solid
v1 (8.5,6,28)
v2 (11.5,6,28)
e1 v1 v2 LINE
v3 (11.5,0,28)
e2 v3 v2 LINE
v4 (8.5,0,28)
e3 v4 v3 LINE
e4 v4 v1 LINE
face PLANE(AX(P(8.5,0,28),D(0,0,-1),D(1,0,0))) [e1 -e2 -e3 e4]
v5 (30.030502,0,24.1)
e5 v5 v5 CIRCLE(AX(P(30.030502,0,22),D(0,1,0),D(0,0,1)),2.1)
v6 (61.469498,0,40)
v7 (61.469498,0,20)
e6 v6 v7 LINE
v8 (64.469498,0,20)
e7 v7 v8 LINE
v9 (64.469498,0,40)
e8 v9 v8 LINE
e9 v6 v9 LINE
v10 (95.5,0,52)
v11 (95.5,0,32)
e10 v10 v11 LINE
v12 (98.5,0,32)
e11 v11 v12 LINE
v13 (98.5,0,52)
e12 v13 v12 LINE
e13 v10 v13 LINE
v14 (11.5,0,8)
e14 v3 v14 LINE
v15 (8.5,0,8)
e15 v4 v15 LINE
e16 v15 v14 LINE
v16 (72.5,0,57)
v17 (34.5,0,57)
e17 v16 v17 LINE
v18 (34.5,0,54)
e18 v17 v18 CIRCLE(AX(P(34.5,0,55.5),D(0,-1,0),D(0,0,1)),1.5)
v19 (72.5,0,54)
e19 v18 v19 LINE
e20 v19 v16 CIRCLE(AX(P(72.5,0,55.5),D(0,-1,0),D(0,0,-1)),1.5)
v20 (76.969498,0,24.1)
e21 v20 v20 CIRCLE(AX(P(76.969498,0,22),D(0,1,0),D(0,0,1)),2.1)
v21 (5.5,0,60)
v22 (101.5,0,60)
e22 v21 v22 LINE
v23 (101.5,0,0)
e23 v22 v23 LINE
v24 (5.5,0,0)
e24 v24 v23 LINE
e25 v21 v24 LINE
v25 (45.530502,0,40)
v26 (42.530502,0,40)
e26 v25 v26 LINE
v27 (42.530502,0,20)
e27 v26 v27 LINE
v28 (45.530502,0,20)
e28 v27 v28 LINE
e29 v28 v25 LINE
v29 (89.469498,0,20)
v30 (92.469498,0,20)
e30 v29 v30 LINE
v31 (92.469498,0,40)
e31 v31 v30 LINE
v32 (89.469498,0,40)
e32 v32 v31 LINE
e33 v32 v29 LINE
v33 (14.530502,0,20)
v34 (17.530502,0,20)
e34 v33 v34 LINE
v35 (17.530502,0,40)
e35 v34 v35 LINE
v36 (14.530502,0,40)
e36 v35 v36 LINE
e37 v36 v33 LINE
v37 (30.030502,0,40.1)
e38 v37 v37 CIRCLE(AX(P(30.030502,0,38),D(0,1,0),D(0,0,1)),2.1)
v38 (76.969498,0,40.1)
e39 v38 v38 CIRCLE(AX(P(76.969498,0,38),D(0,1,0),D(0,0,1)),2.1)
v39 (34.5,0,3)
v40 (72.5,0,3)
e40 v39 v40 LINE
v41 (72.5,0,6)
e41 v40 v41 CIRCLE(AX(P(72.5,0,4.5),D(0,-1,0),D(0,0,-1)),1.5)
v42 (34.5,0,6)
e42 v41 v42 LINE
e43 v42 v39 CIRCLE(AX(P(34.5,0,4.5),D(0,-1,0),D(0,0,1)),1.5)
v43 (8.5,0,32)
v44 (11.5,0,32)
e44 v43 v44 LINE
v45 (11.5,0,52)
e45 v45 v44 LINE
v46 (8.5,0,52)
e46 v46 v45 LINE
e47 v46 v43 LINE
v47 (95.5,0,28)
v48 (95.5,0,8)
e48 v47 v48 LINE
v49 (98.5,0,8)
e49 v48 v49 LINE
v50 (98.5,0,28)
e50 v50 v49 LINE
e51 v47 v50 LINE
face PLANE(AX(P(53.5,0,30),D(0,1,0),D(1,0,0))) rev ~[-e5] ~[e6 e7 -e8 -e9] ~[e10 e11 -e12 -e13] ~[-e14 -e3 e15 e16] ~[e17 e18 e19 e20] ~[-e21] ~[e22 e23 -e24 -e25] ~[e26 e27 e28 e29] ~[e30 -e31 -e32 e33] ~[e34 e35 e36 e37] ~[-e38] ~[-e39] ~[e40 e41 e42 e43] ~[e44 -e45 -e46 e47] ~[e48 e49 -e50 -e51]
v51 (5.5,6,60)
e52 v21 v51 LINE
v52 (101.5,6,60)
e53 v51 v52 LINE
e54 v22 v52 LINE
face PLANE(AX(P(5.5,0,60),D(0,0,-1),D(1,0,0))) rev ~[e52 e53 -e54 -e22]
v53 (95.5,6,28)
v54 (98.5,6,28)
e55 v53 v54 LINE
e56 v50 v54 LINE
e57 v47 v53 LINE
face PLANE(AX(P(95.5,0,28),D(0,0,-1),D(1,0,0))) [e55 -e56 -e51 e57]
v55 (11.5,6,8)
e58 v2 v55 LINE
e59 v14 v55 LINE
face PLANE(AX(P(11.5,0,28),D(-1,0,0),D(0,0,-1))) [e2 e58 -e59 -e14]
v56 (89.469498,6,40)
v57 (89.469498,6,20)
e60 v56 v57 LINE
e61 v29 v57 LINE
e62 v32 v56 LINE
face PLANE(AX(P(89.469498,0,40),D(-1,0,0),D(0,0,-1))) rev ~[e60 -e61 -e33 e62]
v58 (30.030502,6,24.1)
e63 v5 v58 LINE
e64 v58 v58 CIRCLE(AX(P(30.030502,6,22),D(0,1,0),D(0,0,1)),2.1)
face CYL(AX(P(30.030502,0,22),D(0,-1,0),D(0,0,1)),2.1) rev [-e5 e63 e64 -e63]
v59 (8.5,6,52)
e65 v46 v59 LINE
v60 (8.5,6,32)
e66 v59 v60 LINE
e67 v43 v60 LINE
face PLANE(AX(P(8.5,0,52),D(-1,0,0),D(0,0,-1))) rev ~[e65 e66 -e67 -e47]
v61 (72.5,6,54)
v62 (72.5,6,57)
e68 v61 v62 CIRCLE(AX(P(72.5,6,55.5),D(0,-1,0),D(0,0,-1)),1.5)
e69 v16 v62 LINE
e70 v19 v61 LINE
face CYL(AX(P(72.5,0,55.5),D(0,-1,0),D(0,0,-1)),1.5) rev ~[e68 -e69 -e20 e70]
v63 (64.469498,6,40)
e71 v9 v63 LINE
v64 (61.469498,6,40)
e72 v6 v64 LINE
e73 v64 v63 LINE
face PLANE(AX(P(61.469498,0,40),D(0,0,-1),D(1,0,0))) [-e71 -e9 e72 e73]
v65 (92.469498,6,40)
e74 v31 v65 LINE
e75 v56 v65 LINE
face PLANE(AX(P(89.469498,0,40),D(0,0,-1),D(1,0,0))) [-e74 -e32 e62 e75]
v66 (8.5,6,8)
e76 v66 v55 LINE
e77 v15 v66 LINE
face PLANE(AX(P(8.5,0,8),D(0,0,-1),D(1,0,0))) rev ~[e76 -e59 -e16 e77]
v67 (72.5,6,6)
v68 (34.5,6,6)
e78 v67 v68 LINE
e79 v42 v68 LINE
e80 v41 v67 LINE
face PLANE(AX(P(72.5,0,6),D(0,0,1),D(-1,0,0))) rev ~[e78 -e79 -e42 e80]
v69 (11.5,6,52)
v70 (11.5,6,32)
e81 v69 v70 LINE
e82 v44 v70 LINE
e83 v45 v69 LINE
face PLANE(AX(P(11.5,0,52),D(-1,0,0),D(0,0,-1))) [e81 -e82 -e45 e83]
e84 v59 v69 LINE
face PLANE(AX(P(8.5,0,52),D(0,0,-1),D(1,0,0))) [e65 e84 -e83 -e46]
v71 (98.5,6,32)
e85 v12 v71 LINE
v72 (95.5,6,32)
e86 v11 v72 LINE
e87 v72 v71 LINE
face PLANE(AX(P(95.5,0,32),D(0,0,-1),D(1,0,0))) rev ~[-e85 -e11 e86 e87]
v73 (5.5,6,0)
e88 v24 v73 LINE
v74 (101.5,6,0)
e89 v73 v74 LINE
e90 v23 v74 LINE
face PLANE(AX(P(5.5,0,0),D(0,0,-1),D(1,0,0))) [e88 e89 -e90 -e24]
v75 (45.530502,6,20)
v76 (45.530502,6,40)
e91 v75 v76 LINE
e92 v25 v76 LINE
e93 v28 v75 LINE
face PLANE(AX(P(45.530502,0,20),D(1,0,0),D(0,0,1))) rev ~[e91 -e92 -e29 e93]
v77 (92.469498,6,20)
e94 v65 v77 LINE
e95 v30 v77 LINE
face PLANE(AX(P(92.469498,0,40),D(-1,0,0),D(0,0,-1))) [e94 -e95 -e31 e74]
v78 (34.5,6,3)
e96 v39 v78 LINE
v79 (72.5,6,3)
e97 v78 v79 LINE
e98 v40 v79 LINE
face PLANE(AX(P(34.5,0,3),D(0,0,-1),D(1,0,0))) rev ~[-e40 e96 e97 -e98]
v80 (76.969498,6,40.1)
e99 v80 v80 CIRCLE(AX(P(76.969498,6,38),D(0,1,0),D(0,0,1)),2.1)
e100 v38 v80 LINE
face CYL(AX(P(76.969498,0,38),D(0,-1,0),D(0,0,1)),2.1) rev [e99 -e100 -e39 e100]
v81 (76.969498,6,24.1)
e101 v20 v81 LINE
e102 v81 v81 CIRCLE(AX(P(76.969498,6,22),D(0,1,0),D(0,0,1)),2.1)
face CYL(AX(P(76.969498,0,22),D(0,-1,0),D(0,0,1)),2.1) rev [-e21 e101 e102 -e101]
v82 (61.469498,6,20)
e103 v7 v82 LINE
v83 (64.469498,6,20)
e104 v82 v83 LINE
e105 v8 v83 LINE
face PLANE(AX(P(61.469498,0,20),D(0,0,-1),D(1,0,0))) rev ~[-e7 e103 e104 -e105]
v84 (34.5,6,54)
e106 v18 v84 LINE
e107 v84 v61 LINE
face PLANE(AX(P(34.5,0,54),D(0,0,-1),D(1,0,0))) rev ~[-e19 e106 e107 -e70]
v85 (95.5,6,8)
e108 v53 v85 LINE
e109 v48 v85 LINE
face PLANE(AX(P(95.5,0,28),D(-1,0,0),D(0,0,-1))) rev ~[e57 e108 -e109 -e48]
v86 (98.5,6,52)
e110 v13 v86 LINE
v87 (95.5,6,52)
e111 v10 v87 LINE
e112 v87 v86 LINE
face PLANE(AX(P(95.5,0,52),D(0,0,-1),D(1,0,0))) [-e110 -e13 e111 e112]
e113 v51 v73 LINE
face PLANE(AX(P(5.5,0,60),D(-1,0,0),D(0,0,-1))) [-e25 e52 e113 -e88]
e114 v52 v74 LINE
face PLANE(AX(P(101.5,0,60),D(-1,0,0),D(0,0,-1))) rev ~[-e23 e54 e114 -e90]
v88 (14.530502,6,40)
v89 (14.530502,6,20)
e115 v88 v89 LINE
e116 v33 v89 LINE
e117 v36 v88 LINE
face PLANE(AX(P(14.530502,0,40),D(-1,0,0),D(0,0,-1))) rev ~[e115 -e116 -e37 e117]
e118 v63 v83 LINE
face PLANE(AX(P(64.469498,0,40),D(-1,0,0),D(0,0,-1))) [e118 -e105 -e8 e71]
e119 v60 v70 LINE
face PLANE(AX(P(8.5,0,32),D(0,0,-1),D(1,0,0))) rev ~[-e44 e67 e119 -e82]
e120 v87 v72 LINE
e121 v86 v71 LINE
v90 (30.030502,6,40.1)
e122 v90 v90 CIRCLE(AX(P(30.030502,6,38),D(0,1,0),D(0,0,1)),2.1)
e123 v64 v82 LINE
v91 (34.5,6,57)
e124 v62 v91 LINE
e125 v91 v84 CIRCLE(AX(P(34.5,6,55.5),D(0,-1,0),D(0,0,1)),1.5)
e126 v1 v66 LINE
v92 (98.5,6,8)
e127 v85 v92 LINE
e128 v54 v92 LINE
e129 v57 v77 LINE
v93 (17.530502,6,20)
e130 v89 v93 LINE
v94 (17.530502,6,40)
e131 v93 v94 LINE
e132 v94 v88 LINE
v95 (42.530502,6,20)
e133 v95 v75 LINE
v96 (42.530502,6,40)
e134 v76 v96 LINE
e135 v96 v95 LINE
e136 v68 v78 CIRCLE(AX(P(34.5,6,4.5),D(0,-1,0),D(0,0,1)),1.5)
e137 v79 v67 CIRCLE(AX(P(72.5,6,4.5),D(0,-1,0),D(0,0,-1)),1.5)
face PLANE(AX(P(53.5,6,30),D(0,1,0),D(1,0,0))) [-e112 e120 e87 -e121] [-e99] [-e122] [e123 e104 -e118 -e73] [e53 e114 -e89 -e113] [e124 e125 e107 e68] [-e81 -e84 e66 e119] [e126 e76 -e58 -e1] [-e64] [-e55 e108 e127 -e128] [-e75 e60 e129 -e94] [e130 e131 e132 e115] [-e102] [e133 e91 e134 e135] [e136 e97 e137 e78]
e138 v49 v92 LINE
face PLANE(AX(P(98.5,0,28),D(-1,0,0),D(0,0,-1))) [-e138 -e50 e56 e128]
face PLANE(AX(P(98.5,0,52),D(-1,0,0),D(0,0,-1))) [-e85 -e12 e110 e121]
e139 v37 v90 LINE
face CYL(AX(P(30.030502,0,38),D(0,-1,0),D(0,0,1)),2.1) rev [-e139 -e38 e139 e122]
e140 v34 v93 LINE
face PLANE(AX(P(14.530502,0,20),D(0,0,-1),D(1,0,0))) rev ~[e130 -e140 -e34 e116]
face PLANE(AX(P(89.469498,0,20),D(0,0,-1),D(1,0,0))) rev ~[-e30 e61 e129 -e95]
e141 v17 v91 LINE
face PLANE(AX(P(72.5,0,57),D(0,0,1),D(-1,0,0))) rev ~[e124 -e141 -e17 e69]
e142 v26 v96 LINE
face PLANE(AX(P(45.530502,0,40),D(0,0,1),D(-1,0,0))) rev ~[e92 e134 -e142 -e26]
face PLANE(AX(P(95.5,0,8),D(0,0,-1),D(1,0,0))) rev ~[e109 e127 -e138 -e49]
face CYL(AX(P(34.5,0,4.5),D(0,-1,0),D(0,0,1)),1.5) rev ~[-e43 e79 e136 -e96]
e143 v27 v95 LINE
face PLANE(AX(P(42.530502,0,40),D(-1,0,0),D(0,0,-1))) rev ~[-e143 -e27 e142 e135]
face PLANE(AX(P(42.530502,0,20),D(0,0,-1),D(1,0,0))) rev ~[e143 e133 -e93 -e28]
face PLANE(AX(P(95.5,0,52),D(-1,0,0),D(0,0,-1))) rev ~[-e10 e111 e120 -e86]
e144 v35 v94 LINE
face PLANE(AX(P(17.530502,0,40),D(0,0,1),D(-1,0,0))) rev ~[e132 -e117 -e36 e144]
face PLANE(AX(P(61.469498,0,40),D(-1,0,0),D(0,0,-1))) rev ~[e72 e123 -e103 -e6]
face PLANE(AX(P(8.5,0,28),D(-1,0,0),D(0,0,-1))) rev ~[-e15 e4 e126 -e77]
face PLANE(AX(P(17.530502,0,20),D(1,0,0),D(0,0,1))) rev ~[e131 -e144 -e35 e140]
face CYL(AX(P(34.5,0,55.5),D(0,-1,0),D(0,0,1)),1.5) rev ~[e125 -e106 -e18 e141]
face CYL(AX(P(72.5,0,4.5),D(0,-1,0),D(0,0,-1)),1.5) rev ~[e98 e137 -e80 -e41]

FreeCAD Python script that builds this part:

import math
import FreeCAD as App
import Part
import Sketcher
from FreeCAD import Vector


def add_polygon(sketch, points):
    """Adds a closed chain of lines whose ends are joined by coincident constraints."""
    first, n = sketch.GeometryCount, len(points)
    for a, b in zip(points, points[1:] + points[:1]):
        sketch.addGeometry(Part.LineSegment(App.Vector(*a, 0), App.Vector(*b, 0)), False)
    for i in range(n):
        sketch.addConstraint(Sketcher.Constraint("Coincident", first + i, 2, first + (i + 1) % n, 1))

doc = App.newDocument("Part")
body = doc.addObject("PartDesign::Body", "Body")

# Sketch on XZ plane
sketch1 = body.newObject("Sketcher::SketchObject", "Sketch")
sketch1.AttachmentSupport = (doc.getObject("XZ_Plane"), [""])
sketch1.MapMode = "FlatFace"
add_polygon(sketch1, [(5.5, 0), (5.5, 60), (101.5, 60), (101.5, 0)])  # lines 0-3
add_polygon(sketch1, [(11.5, 52), (8.5, 52), (8.5, 32), (11.5, 32)])  # lines 4-7
sketch1.addGeometry(Part.Circle(Vector(30.030502, 38, 0), Vector(0, 0, 1), 2.1), False)  # 8
sketch1.addGeometry(Part.ArcOfCircle(Part.Circle(Vector(72.5, 55.5, 0), Vector(0, 0, 1), 1.5), math.radians(-90), math.radians(90)), False)  # 9
sketch1.addGeometry(Part.LineSegment(Vector(72.5, 57, 0), Vector(34.5, 57, 0)), False)  # 10
sketch1.addGeometry(Part.ArcOfCircle(Part.Circle(Vector(34.5, 55.5, 0), Vector(0, 0, 1), 1.5), math.radians(90), math.radians(270)), False)  # 11
sketch1.addGeometry(Part.LineSegment(Vector(34.5, 54, 0), Vector(72.5, 54, 0)), False)  # 12
sketch1.addGeometry(Part.Circle(Vector(76.969498, 38, 0), Vector(0, 0, 1), 2.1), False)  # 13
add_polygon(sketch1, [(98.5, 52), (95.5, 52), (95.5, 32), (98.5, 32)])  # lines 14-17
add_polygon(sketch1, [(17.530502, 40), (14.530502, 40), (14.530502, 20), (17.530502, 20)])  # lines 18-21
add_polygon(sketch1, [(11.5, 28), (8.5, 28), (8.5, 8), (11.5, 8)])  # lines 22-25
sketch1.addGeometry(Part.Circle(Vector(30.030502, 22, 0), Vector(0, 0, 1), 2.1), False)  # 26
add_polygon(sketch1, [(45.530502, 40), (42.530502, 40), (42.530502, 20), (45.530502, 20)])  # lines 27-30
add_polygon(sketch1, [(64.469498, 40), (61.469498, 40), (61.469498, 20), (64.469498, 20)])  # lines 31-34
add_polygon(sketch1, [(92.469498, 40), (89.469498, 40), (89.469498, 20), (92.469498, 20)])  # lines 35-38
sketch1.addGeometry(Part.Circle(Vector(76.969498, 22, 0), Vector(0, 0, 1), 2.1), False)  # 39
add_polygon(sketch1, [(98.5, 28), (95.5, 28), (95.5, 8), (98.5, 8)])  # lines 40-43
sketch1.addGeometry(Part.ArcOfCircle(Part.Circle(Vector(72.5, 4.5, 0), Vector(0, 0, 1), 1.5), math.radians(-90), math.radians(90)), False)  # 44
sketch1.addGeometry(Part.LineSegment(Vector(72.5, 6, 0), Vector(34.5, 6, 0)), False)  # 45
sketch1.addGeometry(Part.ArcOfCircle(Part.Circle(Vector(34.5, 4.5, 0), Vector(0, 0, 1), 1.5), math.radians(90), math.radians(270)), False)  # 46
sketch1.addGeometry(Part.LineSegment(Vector(34.5, 3, 0), Vector(72.5, 3, 0)), False)  # 47
sketch1.addConstraint([
    Sketcher.Constraint("Tangent", 9, 2, 10, 1),
    Sketcher.Constraint("Tangent", 10, 2, 11, 1),
    Sketcher.Constraint("Tangent", 11, 2, 12, 1),
    Sketcher.Constraint("Tangent", 12, 2, 9, 1),
    Sketcher.Constraint("Tangent", 44, 2, 45, 1),
    Sketcher.Constraint("Tangent", 45, 2, 46, 1),
    Sketcher.Constraint("Tangent", 46, 2, 47, 1),
    Sketcher.Constraint("Tangent", 47, 2, 44, 1),
    Sketcher.Constraint("Vertical", 0),
    Sketcher.Constraint("Horizontal", 1),
    Sketcher.Constraint("Vertical", 2),
    Sketcher.Constraint("Horizontal", 3),
    Sketcher.Constraint("Horizontal", 4),
    Sketcher.Constraint("Vertical", 5),
    Sketcher.Constraint("Horizontal", 6),
    Sketcher.Constraint("Vertical", 7),
    Sketcher.Constraint("Horizontal", 10),
    Sketcher.Constraint("Horizontal", 12),
    Sketcher.Constraint("Horizontal", 14),
    Sketcher.Constraint("Vertical", 15),
    Sketcher.Constraint("Horizontal", 16),
    Sketcher.Constraint("Vertical", 17),
    Sketcher.Constraint("Horizontal", 18),
    Sketcher.Constraint("Vertical", 19),
    Sketcher.Constraint("Horizontal", 20),
    Sketcher.Constraint("Vertical", 21),
    Sketcher.Constraint("Horizontal", 22),
    Sketcher.Constraint("Vertical", 23),
    Sketcher.Constraint("Horizontal", 24),
    Sketcher.Constraint("Vertical", 25),
    Sketcher.Constraint("Horizontal", 27),
    Sketcher.Constraint("Vertical", 28),
    Sketcher.Constraint("Horizontal", 29),
    Sketcher.Constraint("Vertical", 30),
    Sketcher.Constraint("Horizontal", 31),
    Sketcher.Constraint("Vertical", 32),
    Sketcher.Constraint("Horizontal", 33),
    Sketcher.Constraint("Vertical", 34),
    Sketcher.Constraint("Horizontal", 35),
    Sketcher.Constraint("Vertical", 36),
    Sketcher.Constraint("Horizontal", 37),
    Sketcher.Constraint("Vertical", 38),
    Sketcher.Constraint("Horizontal", 40),
    Sketcher.Constraint("Vertical", 41),
    Sketcher.Constraint("Horizontal", 42),
    Sketcher.Constraint("Vertical", 43),
    Sketcher.Constraint("Horizontal", 45),
    Sketcher.Constraint("Horizontal", 47),
    Sketcher.Constraint("Equal", 8, 13),
    Sketcher.Constraint("Equal", 13, 26),
    Sketcher.Constraint("Equal", 26, 39),
    Sketcher.Constraint("Equal", 11, 44),
    Sketcher.Constraint("PointOnObject", 2, 2, -1),
    Sketcher.Constraint("Horizontal", 8, 3, 13, 3),
    Sketcher.Constraint("Horizontal", 26, 3, 39, 3),
    Sketcher.Constraint("Horizontal", 7, 2, 14, 2),
    Sketcher.Constraint("Horizontal", 6, 2, 15, 2),
    Sketcher.Constraint("Horizontal", 21, 2, 27, 2),
    Sketcher.Constraint("Horizontal", 20, 2, 28, 2),
    Sketcher.Constraint("Horizontal", 30, 2, 31, 2),
    Sketcher.Constraint("Horizontal", 29, 2, 32, 2),
    Sketcher.Constraint("Horizontal", 34, 2, 35, 2),
    Sketcher.Constraint("Horizontal", 33, 2, 36, 2),
    Sketcher.Constraint("Horizontal", 25, 2, 40, 2),
    Sketcher.Constraint("Horizontal", 24, 2, 41, 2),
    Sketcher.Constraint("Vertical", 8, 3, 26, 3),
    Sketcher.Constraint("Vertical", 13, 3, 39, 3),
    Sketcher.Constraint("Vertical", 9, 3, 44, 3),
    Sketcher.Constraint("Vertical", 11, 3, 46, 3),
    Sketcher.Constraint("Vertical", 5, 2, 22, 2),
    Sketcher.Constraint("Vertical", 7, 2, 24, 2),
    Sketcher.Constraint("Vertical", 15, 2, 40, 2),
    Sketcher.Constraint("Vertical", 17, 2, 42, 2),
    Sketcher.Constraint("Equal", 6, 14),
    Sketcher.Constraint("Equal", 16, 18),
    Sketcher.Constraint("Equal", 24, 27),
    Sketcher.Constraint("Equal", 29, 31),
    Sketcher.Constraint("Equal", 33, 35),
    Sketcher.Constraint("Equal", 17, 19),
    Sketcher.Constraint("Equal", 21, 23),
    Sketcher.Constraint("Diameter", 8, 4.2),
    Sketcher.Constraint("Radius", 9, 1.5),
    Sketcher.Constraint("DistanceX", 1, 1, 1, 2, 96.0),
    Sketcher.Constraint("DistanceX", 4, 2, 4, 1, 3.0),
    Sketcher.Constraint("DistanceX", 10, 2, 10, 1, 38.0),
    Sketcher.Constraint("DistanceY", 0, 1, 0, 2, 60.0),
    Sketcher.Constraint("DistanceY", 5, 2, 5, 1, 20.0),
    Sketcher.Constraint("DistanceY", -1, 1, 8, 3, 38.0),
    Sketcher.Constraint("DistanceY", -1, 1, 26, 3, 22.0),
    Sketcher.Constraint("DistanceY", -1, 1, 4, 2, 52.0),
    Sketcher.Constraint("DistanceY", -1, 1, 9, 2, 57.0),
    Sketcher.Constraint("DistanceY", -1, 1, 18, 2, 40.0),
    Sketcher.Constraint("DistanceY", -1, 1, 22, 2, 28.0),
    Sketcher.Constraint("DistanceY", -1, 1, 44, 2, 6.0),
    Sketcher.Constraint("DistanceX", 0, 2, 11, 3, 29.0),
    Sketcher.Constraint("DistanceX", 0, 2, 4, 2, 3.0),
    Sketcher.Constraint("DistanceX", 14, 2, 1, 2, 6.0),
    Sketcher.Constraint("DistanceX", 20, 2, 28, 2, 25.0),
    Sketcher.Constraint("DistanceX", -1, 1, 9, 3, 72.5),
    Sketcher.Constraint("DistanceX", 18, 2, 8, 3, 15.5),
    Sketcher.Constraint("DistanceX", 31, 2, 13, 3, 15.5),
    Sketcher.Constraint("DistanceX", 13, 3, 35, 2, 12.5),
    Sketcher.Constraint("DistanceX", -1, 1, 8, 3, 30.030502),
    Sketcher.Constraint("DistanceX", -1, 1, 13, 3, 76.969498),
])
pad1 = body.newObject("PartDesign::Pad", "Pad")
pad1.Profile = sketch1
pad1.Length = 6
pad1.Reversed = True

doc.recompute()
